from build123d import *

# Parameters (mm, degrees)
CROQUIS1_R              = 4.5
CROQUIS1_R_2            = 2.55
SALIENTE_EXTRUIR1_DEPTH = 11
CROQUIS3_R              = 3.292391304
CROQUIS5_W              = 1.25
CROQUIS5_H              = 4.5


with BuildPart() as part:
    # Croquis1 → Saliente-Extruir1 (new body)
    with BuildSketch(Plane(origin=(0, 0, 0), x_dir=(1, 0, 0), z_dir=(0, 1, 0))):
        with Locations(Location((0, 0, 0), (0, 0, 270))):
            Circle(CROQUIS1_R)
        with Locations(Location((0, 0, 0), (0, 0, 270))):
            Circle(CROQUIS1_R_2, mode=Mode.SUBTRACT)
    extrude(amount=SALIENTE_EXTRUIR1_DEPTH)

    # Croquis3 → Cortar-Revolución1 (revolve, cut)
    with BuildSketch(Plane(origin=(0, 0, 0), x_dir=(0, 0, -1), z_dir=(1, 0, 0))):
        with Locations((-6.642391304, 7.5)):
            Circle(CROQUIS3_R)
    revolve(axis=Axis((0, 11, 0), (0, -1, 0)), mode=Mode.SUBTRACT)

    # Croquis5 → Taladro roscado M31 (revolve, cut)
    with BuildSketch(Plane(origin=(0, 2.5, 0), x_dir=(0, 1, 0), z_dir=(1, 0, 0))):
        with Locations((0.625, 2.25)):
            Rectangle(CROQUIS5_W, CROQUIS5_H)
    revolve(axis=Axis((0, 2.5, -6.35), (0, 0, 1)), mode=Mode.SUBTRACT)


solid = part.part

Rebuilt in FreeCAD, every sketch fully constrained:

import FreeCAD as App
import Part
import Sketcher

doc = App.newDocument("Part")
body = doc.addObject("PartDesign::Body", "Body")

# Sketch on XZ plane
sketch1 = body.newObject("Sketcher::SketchObject", "Sketch")
sketch1.AttachmentSupport = (doc.getObject("XZ_Plane"), [""])
sketch1.MapMode = "FlatFace"
sketch1.addGeometry(Part.Circle(App.Vector(0, 0, 0), App.Vector(0, 0, 1), 4.5), False)
sketch1.addGeometry(Part.Circle(App.Vector(0, 0, 0), App.Vector(0, 0, 1), 2.5), False)
sketch1.addConstraint(Sketcher.Constraint("Coincident", 0, 3, -1, 1))
sketch1.addConstraint(Sketcher.Constraint("Coincident", 1, 3, -1, 1))
sketch1.addConstraint(Sketcher.Constraint("Diameter", 0, 9.0))
sketch1.addConstraint(Sketcher.Constraint("Diameter", 1, 5.1))
pad1 = body.newObject("PartDesign::Pad", "Pad")
pad1.Profile = sketch1
pad1.Length = 11
pad1.Reversed = True

# Sketch on YZ plane
sketch2 = body.newObject("Sketcher::SketchObject", "Sketch001")
sketch2.AttachmentSupport = (doc.getObject("YZ_Plane"), [""])
sketch2.MapMode = "FlatFace"
sketch2.addGeometry(Part.Circle(App.Vector(7.5, 6.6, 0), App.Vector(0, 0, 1), 3.3), False)
sketch2.addConstraint(Sketcher.Constraint("DistanceX", -1, 1, 0, 3, 7.5))
sketch2.addConstraint(Sketcher.Constraint("Diameter", 0, 6.584783))
sketch2.addConstraint(Sketcher.Constraint("DistanceY", -1, 1, 0, 3, 6.642391))
groove = body.newObject("PartDesign::Groove", "Groove")
groove.Profile = sketch2
groove.ReferenceAxis = (sketch2, ["H_Axis"])
groove.Angle = 360

# Sketch on YZ plane
sketch3 = body.newObject("Sketcher::SketchObject", "Sketch002")
sketch3.AttachmentSupport = (doc.getObject("YZ_Plane"), [""])
sketch3.MapMode = "FlatFace"
sketch3.addGeometry(Part.LineSegment(App.Vector(2.5, 4.5, 0), App.Vector(2.5, 0, 0)), False)
sketch3.addGeometry(Part.LineSegment(App.Vector(2.5, 0, 0), App.Vector(3.8, 0, 0)), False)
sketch3.addGeometry(Part.LineSegment(App.Vector(3.8, 0, 0), App.Vector(3.8, 4.5, 0)), False)
sketch3.addGeometry(Part.LineSegment(App.Vector(3.8, 4.5, 0), App.Vector(2.5, 4.5, 0)), False)
sketch3.addGeometry(Part.LineSegment(App.Vector(2.5, 0, 0), App.Vector(2.5, 4.5, 0)), True)  # axis
sketch3.addConstraint(Sketcher.Constraint("Coincident", 0, 2, 1, 1))
sketch3.addConstraint(Sketcher.Constraint("Coincident", 1, 2, 2, 1))
sketch3.addConstraint(Sketcher.Constraint("Coincident", 2, 2, 3, 1))
sketch3.addConstraint(Sketcher.Constraint("Coincident", 3, 2, 0, 1))
sketch3.addConstraint(Sketcher.Constraint("Vertical", 0))
sketch3.addConstraint(Sketcher.Constraint("Horizontal", 1))
sketch3.addConstraint(Sketcher.Constraint("Vertical", 2))
sketch3.addConstraint(Sketcher.Constraint("Horizontal", 3))
sketch3.addConstraint(Sketcher.Constraint("Vertical", 4))
sketch3.addConstraint(Sketcher.Constraint("Coincident", 4, 1, 0, 2))
sketch3.addConstraint(Sketcher.Constraint("PointOnObject", 0, 2, -1))
sketch3.addConstraint(Sketcher.Constraint("Horizontal", 2, 2, 4, 2))
sketch3.addConstraint(Sketcher.Constraint("DistanceY", 0, 2, 0, 1, 4.5))
sketch3.addConstraint(Sketcher.Constraint("DistanceX", 1, 1, 1, 2, 1.25))
sketch3.addConstraint(Sketcher.Constraint("DistanceX", -1, 1, 0, 2, 2.5))
groove2 = body.newObject("PartDesign::Groove", "Groove001")
groove2.Profile = sketch3
groove2.ReferenceAxis = (sketch3, ["Axis0"])
groove2.Angle = 360

doc.recompute()
